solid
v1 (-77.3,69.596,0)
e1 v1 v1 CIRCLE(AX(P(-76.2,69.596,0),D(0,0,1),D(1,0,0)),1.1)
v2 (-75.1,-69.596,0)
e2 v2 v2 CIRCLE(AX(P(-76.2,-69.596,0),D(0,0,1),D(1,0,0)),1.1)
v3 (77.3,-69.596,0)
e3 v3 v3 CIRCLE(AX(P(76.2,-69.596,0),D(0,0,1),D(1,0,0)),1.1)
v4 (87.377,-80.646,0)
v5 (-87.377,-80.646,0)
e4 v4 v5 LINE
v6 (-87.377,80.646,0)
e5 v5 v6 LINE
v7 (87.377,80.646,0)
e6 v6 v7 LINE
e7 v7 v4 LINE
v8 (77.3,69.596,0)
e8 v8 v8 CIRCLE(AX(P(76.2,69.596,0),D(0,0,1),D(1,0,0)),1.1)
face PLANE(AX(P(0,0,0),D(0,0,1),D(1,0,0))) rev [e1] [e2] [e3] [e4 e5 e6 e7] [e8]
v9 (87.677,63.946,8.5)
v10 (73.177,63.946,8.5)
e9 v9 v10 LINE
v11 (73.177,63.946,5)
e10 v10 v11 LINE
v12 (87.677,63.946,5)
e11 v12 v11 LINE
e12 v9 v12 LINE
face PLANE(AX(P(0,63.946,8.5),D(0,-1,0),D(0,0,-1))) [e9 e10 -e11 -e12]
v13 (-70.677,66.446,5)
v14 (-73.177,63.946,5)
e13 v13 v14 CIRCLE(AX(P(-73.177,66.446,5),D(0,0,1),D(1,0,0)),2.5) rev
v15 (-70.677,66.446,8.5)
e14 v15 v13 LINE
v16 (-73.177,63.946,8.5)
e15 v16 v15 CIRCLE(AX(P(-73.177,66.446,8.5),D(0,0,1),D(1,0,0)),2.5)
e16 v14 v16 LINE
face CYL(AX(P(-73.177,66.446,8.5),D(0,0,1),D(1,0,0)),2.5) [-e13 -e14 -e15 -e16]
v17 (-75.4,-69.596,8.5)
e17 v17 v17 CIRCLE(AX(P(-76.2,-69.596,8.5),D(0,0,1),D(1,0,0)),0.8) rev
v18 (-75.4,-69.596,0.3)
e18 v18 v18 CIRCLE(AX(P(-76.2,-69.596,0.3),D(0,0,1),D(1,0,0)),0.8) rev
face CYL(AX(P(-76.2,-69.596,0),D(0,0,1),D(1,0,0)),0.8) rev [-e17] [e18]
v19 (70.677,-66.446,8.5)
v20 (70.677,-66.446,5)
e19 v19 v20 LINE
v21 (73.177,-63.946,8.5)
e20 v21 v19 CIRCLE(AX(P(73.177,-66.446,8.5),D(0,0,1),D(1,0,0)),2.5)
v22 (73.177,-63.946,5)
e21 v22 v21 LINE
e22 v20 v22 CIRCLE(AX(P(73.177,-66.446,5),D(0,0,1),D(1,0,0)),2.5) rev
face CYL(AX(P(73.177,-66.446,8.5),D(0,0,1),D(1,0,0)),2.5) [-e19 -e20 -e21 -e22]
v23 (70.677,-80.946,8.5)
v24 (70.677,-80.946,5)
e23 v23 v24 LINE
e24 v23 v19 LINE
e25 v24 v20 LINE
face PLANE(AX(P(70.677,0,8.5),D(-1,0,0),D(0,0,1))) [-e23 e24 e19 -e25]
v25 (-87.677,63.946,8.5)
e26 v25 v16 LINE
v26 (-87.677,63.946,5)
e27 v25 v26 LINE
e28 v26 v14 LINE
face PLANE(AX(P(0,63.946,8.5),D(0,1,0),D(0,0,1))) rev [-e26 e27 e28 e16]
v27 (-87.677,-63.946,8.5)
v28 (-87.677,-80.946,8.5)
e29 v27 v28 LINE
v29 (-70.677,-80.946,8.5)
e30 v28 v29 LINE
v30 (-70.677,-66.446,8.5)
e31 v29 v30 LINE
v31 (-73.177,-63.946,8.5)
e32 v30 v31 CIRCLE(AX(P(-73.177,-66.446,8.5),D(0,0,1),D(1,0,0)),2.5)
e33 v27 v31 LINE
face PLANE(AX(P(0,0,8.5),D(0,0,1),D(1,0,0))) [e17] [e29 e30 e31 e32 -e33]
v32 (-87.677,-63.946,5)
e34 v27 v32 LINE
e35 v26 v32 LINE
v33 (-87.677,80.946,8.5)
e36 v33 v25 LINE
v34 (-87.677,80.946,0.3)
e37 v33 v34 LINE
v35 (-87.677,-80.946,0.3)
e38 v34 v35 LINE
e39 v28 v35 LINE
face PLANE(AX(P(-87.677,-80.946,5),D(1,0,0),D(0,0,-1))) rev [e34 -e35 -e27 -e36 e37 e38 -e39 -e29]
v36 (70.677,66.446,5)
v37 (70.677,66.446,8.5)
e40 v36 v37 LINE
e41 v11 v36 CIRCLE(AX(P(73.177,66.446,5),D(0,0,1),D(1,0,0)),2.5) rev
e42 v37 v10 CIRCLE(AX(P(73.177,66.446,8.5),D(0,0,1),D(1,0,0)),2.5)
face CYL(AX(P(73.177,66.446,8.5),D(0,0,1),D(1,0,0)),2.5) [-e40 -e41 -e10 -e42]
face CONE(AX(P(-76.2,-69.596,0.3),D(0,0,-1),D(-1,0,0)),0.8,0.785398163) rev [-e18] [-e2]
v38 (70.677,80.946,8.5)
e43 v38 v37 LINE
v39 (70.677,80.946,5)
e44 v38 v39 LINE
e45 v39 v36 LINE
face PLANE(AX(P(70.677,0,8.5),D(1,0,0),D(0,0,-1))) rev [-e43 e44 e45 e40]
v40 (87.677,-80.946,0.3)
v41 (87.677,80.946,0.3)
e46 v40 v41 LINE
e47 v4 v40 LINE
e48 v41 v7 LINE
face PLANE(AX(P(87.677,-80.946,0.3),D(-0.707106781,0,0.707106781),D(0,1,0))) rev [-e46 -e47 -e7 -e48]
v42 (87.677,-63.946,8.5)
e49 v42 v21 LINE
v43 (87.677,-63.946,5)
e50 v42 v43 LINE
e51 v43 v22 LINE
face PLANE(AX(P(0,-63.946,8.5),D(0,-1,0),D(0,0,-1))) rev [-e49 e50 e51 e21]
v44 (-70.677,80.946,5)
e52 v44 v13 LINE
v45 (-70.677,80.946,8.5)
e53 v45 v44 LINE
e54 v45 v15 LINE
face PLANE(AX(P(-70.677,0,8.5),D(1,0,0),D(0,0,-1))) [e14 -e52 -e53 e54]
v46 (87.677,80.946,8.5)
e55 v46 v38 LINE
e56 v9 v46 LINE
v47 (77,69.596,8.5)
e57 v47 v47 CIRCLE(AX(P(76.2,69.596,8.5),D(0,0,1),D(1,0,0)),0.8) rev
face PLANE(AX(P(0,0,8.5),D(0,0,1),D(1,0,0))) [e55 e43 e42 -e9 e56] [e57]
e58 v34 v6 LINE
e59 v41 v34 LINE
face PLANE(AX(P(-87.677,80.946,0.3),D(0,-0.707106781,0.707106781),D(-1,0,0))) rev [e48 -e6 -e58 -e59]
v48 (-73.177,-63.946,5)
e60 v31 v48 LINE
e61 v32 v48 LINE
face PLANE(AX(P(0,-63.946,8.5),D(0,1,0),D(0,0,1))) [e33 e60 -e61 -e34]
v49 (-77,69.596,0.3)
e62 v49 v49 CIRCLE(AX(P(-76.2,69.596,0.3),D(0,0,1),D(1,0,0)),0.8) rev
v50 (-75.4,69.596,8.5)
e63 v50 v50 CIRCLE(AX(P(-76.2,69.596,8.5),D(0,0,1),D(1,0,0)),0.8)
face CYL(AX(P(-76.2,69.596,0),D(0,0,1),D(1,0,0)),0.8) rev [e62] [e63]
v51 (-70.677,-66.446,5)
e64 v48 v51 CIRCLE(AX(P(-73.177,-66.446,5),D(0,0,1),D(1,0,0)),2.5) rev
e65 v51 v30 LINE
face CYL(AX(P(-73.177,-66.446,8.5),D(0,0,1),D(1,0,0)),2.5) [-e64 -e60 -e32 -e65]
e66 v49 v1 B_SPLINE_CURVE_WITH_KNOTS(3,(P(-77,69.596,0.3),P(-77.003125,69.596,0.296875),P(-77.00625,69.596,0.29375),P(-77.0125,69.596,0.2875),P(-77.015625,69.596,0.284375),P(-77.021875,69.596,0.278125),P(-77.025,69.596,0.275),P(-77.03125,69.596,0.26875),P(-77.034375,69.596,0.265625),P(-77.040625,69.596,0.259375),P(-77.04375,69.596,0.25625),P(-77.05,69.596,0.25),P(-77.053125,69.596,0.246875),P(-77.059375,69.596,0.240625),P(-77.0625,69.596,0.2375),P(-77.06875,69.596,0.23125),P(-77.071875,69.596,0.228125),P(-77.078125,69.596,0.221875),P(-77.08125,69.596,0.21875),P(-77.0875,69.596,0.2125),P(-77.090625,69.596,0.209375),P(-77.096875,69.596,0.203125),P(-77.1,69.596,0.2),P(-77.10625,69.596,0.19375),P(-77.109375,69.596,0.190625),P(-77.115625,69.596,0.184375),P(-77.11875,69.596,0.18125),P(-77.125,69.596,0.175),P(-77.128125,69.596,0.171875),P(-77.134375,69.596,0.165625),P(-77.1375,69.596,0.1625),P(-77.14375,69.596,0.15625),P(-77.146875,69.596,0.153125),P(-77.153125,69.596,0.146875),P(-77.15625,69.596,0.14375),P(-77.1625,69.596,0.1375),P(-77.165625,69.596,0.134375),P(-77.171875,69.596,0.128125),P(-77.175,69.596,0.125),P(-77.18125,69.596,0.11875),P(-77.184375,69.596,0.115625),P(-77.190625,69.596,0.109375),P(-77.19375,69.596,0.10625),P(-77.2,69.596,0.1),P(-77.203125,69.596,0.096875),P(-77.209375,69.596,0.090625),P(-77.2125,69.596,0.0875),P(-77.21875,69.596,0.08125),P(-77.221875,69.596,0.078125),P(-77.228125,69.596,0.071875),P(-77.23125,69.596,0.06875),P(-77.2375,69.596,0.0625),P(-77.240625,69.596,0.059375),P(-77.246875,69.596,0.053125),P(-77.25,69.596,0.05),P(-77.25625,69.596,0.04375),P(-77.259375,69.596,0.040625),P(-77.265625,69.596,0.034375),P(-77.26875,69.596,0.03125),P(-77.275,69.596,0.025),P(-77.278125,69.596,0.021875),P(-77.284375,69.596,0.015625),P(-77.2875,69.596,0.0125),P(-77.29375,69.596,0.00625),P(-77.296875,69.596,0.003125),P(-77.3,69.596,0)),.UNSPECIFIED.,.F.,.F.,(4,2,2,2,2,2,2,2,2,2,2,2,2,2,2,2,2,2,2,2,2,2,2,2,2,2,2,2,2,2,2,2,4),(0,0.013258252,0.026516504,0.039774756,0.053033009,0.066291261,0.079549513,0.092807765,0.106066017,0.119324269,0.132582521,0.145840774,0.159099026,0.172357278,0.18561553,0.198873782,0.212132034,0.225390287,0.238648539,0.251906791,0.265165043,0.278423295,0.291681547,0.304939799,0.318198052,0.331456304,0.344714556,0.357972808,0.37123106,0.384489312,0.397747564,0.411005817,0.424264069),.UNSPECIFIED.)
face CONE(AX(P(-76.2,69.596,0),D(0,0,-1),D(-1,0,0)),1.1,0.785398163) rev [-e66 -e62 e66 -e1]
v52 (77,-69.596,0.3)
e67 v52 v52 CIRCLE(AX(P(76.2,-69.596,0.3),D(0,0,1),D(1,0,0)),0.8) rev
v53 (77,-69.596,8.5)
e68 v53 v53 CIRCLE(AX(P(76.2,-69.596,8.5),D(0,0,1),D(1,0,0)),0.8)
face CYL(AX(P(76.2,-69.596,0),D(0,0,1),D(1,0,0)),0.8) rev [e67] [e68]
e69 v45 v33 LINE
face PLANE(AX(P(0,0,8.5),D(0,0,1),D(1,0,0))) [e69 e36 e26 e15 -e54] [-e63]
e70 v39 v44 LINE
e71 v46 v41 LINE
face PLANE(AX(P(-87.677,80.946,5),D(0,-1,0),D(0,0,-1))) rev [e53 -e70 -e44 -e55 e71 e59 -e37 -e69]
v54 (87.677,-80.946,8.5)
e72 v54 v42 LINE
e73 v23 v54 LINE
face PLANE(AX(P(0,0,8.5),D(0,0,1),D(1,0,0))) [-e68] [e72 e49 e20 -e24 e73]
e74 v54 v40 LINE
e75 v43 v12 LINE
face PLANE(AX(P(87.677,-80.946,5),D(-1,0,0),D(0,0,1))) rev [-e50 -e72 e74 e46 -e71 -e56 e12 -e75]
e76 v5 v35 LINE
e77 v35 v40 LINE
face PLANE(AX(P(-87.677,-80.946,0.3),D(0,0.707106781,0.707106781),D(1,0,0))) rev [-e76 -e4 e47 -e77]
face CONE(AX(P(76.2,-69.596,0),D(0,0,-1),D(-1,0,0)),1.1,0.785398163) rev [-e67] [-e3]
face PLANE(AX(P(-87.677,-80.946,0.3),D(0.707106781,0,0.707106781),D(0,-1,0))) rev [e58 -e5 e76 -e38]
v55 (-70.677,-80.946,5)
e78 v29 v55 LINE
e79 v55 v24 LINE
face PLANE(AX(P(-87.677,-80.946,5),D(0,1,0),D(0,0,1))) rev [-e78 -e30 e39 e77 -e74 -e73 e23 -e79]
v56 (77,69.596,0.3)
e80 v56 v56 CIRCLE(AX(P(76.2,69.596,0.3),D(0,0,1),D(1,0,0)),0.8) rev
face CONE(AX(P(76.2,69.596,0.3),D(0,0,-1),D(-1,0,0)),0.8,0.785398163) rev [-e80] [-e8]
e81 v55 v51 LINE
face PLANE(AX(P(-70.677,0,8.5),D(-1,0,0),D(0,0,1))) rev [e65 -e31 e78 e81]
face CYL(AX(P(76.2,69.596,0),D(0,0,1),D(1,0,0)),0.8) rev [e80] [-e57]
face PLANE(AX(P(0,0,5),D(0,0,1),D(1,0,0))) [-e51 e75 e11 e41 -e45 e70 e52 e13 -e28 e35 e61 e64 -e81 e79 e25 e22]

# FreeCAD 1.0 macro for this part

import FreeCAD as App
import Part
import Sketcher
from FreeCAD import Vector
Q = App.Units.Quantity


def edges_at(feature, points):
    """Names of the edges that pass closest to the given points."""
    edges = feature.Shape.Edges
    near = lambda p: min(range(len(edges)), key=lambda i: edges[i].distToShape(Part.Vertex(*p))[0])
    return sorted({f"Edge{near(p) + 1}" for p in points})


def add_polygon(sketch, points):
    """Adds a closed chain of lines whose ends are joined by coincident constraints."""
    first, n = sketch.GeometryCount, len(points)
    for a, b in zip(points, points[1:] + points[:1]):
        sketch.addGeometry(Part.LineSegment(App.Vector(*a, 0), App.Vector(*b, 0)), False)
    for i in range(n):
        sketch.addConstraint(Sketcher.Constraint("Coincident", first + i, 2, first + (i + 1) % n, 1))

doc = App.newDocument("Part")
body = doc.addObject("PartDesign::Body", "Body")

sketch1 = body.newObject("Sketcher::SketchObject", "Sketch")
sketch1.AttachmentSupport = (doc.getObject("XY_Plane"), [""])
sketch1.MapMode = "FlatFace"
add_polygon(sketch1, [(-87.677, -80.946), (87.677, -80.946), (87.677, 80.946), (-87.677, 80.946)])
sketch1.addConstraint([
    Sketcher.Constraint("Horizontal", 0),
    Sketcher.Constraint("Vertical", 1),
    Sketcher.Constraint("Horizontal", 2),
    Sketcher.Constraint("Vertical", 3),
    Sketcher.Constraint("Symmetric", 0, 2, 2, 2, -1, 1),
    Sketcher.Constraint("DistanceX", 0, 1, 0, 2, Q("175.354 mm")),
    Sketcher.Constraint("DistanceY", 1, 1, 1, 2, Q("161.892 mm")),
])
pad1 = body.newObject("PartDesign::Pad", "Pad")
pad1.Profile = sketch1
pad1.Length = 5

sketch2 = body.newObject("Sketcher::SketchObject", "Sketch001")
sketch2.AttachmentSupport = (doc.getObject("XY_Plane"), [""])
sketch2.MapMode = "FlatFace"
sketch2.AttachmentOffset = App.Placement(Vector(0, 0, 5), App.Rotation())
add_polygon(sketch2, [(70.677, 80.946), (70.677, 63.946), (87.677, 63.946), (87.677, 80.946)])
add_polygon(sketch2, [(70.677, -63.946), (70.677, -80.946), (87.677, -80.946), (87.677, -63.946)])
add_polygon(sketch2, [(-87.677, -63.946), (-87.677, -80.946), (-70.677, -80.946), (-70.677, -63.946)])
add_polygon(sketch2, [(-87.677, 80.946), (-87.677, 63.946), (-70.677, 63.946), (-70.677, 80.946)])
sketch2.addConstraint([
    Sketcher.Constraint("Vertical", 0),
    Sketcher.Constraint("Horizontal", 1),
    Sketcher.Constraint("Vertical", 2),
    Sketcher.Constraint("Horizontal", 3),
    Sketcher.Constraint("Vertical", 4),
    Sketcher.Constraint("Horizontal", 5),
    Sketcher.Constraint("Vertical", 6),
    Sketcher.Constraint("Horizontal", 7),
    Sketcher.Constraint("Vertical", 8),
    Sketcher.Constraint("Horizontal", 9),
    Sketcher.Constraint("Vertical", 10),
    Sketcher.Constraint("Horizontal", 11),
    Sketcher.Constraint("Vertical", 12),
    Sketcher.Constraint("Horizontal", 13),
    Sketcher.Constraint("Vertical", 14),
    Sketcher.Constraint("Horizontal", 15),
    Sketcher.Constraint("Symmetric", 2, 2, 8, 2, -1, 1),
    Sketcher.Constraint("Symmetric", 0, 2, 10, 2, -1, 1),
    Sketcher.Constraint("Symmetric", 6, 2, 12, 2, -1, 1),
    Sketcher.Constraint("Symmetric", 4, 2, 14, 2, -1, 1),
    Sketcher.Constraint("Symmetric", 5, 2, 8, 2, -2),
    Sketcher.Constraint("Symmetric", 7, 2, 10, 2, -2),
    Sketcher.Constraint("Equal", 15, 0),
    Sketcher.Constraint("DistanceX", 1, 1, 1, 2, Q("17 mm")),
    Sketcher.Constraint("DistanceX", -1, 1, 0, 2, Q("70.677 mm")),
    Sketcher.Constraint("DistanceY", -1, 1, 0, 2, Q("63.946 mm")),
])
pad2 = body.newObject("PartDesign::Pad", "Pad001")
pad2.Profile = sketch2
pad2.Length = 3.5

sketch3 = body.newObject("Sketcher::SketchObject", "Sketch002")
sketch3.AttachmentSupport = (doc.getObject("XY_Plane"), [""])
sketch3.MapMode = "FlatFace"
sketch3.AttachmentOffset = App.Placement(Vector(0, 0, 8.5), App.Rotation())
sketch3.addGeometry([
    Part.Circle(Vector(-76.2, 69.596, 0), Vector(0, 0, 1), 0.8),
    Part.Circle(Vector(76.2, 69.596, 0), Vector(0, 0, 1), 0.8),
    Part.Circle(Vector(76.2, -69.596, 0), Vector(0, 0, 1), 0.8),
    Part.Circle(Vector(-76.2, -69.596, 0), Vector(0, 0, 1), 0.8),
], False)
sketch3.addConstraint([
    Sketcher.Constraint("Equal", 0, 1),
    Sketcher.Constraint("Equal", 1, 2),
    Sketcher.Constraint("Equal", 2, 3),
    Sketcher.Constraint("Symmetric", 0, 3, 2, 3, -1, 1),
    Sketcher.Constraint("Symmetric", 1, 3, 3, 3, -1, 1),
    Sketcher.Constraint("Symmetric", 0, 3, 1, 3, -2),
    Sketcher.Constraint("Diameter", 0, Q("1.6 mm")),
    Sketcher.Constraint("DistanceX", 0, 3, -1, 1, Q("76.2 mm")),
    Sketcher.Constraint("DistanceY", -1, 1, 0, 3, Q("69.596 mm")),
])
pocket1 = body.newObject("PartDesign::Pocket", "Pocket")
pocket1.Profile = sketch3
pocket1.Type = "ThroughAll"
doc.recompute()

fillet = body.newObject("PartDesign::Fillet", "Fillet")
fillet.Base = (pocket1, edges_at(pocket1, [
    (-70.677, 63.946, 6.75),
    (70.677, 63.946, 6.75),
    (70.677, -63.946, 6.75),
    (-70.677, -63.946, 6.75),
]))
fillet.Radius = 2.5
doc.recompute()

chamfer = body.newObject("PartDesign::Chamfer", "Chamfer")
chamfer.Base = (fillet, edges_at(fillet, [
    (87.677, 0, 0),
    (0, -80.946, 0),
    (-87.677, 0, 0),
    (0, 80.946, 0),
    (-77, -69.596, 0),
    (75.4, -69.596, 0),
    (75.4, 69.596, 0),
    (-77, 69.596, 0),
]))
chamfer.Size = 0.3

doc.recompute()
